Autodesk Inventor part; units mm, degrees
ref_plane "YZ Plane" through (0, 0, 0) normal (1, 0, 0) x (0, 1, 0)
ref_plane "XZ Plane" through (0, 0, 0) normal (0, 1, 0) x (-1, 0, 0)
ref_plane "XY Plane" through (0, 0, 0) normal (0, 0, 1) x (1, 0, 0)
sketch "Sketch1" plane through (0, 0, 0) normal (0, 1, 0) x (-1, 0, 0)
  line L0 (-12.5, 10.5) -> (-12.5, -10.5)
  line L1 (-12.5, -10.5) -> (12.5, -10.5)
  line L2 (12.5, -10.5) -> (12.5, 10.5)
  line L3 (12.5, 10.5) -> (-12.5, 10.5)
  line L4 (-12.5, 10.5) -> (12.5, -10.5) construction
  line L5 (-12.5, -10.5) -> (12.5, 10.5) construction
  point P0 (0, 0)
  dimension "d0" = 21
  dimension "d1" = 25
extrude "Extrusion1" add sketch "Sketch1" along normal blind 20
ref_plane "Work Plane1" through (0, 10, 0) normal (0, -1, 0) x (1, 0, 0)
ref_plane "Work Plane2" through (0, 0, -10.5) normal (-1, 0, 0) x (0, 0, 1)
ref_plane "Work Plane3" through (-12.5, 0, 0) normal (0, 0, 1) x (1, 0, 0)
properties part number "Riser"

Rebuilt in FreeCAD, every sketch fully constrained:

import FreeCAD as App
import Part
import Sketcher
from FreeCAD import Vector


def add_polygon(sketch, points):
    """Adds a closed chain of lines whose ends are joined by coincident constraints."""
    first, n = sketch.GeometryCount, len(points)
    for a, b in zip(points, points[1:] + points[:1]):
        sketch.addGeometry(Part.LineSegment(App.Vector(*a, 0), App.Vector(*b, 0)), False)
    for i in range(n):
        sketch.addConstraint(Sketcher.Constraint("Coincident", first + i, 2, first + (i + 1) % n, 1))

doc = App.newDocument("Part")
body = doc.addObject("PartDesign::Body", "Body")

# Sketch on XZ plane
sketch1 = doc.addObject("Sketcher::SketchObject", "Sketch")
body.addObject(sketch1)
sketch1.AttachmentSupport = (doc.XZ_Plane, [""])
sketch1.MapMode = "FlatFace"
add_polygon(sketch1, [(-12, 10), (12, 10), (12, -10), (-12, -10)])  # lines 0-3
sketch1.addConstraint(Sketcher.Constraint("Horizontal", 0))
sketch1.addConstraint(Sketcher.Constraint("Vertical", 1))
sketch1.addConstraint(Sketcher.Constraint("Horizontal", 2))
sketch1.addConstraint(Sketcher.Constraint("Vertical", 3))
sketch1.addConstraint(Sketcher.Constraint("Symmetric", 0, 2, 2, 2, -1, 1))
sketch1.addConstraint(Sketcher.Constraint("DistanceX", 0, 1, 0, 2, 25.0))
sketch1.addConstraint(Sketcher.Constraint("DistanceY", 1, 2, 1, 1, 21.0))
pad1 = doc.addObject("PartDesign::Pad", "Pad")
body.addObject(pad1)
pad1.Profile = sketch1
pad1.Length = 20
pad1.Reversed = True

doc.recompute()
